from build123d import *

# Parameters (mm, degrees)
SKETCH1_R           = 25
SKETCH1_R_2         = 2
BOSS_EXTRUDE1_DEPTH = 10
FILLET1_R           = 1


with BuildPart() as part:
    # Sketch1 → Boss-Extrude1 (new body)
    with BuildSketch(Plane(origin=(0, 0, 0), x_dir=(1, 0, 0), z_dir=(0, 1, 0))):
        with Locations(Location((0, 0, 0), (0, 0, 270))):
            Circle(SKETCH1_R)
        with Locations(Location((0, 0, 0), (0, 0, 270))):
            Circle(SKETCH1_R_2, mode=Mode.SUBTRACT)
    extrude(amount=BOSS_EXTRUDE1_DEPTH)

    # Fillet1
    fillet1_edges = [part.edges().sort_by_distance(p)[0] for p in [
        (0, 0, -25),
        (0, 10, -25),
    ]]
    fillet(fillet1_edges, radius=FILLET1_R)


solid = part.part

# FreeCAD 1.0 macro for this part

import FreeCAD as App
import Part
import Sketcher

V = App.Vector
Q = App.Units.Quantity


def edges_at(feature, points):
    """Names of the edges that pass closest to the given points."""
    edges = feature.Shape.Edges
    near = lambda p: min(range(len(edges)), key=lambda i: edges[i].distToShape(Part.Vertex(*p))[0])
    return sorted({f"Edge{near(p) + 1}" for p in points})

doc = App.newDocument("Part")
params = doc.addObject("Spreadsheet::Sheet", "Params")
for row, (alias, value) in enumerate([
    ("sketch1_diameter", "50 mm"),
    ("sketch1_diameter2", "4 mm"),
    ("pad1_length", "10 mm"),
    ("fillet_radius", "1 mm"),
], start=1):
    params.set(f"A{row}", alias)
    params.set(f"B{row}", "=" + value)
    params.setAlias(f"B{row}", alias)

body = doc.addObject("PartDesign::Body", "Body")

# Sketch on XZ plane
sketch1 = body.newObject("Sketcher::SketchObject", "Sketch")
sketch1.AttachmentSupport = (doc.getObject("XZ_Plane"), [""])
sketch1.MapMode = "FlatFace"
sketch1.addGeometry(Part.Circle(V(0, 0, 0), V(0, 0, 1), 25), False)
sketch1.addGeometry(Part.Circle(V(0, 0, 0), V(0, 0, 1), 2), False)
sketch1.addConstraint(Sketcher.Constraint("Coincident", 0, 3, -1, 1))
sketch1.addConstraint(Sketcher.Constraint("Coincident", 1, 3, -1, 1))
sketch1.addConstraint(Sketcher.Constraint("Diameter", 0, Q("50 mm")))
sketch1.addConstraint(Sketcher.Constraint("Diameter", 1, Q("4 mm")))
sketch1.setExpression("Constraints[2]", "Params.sketch1_diameter")
sketch1.setExpression("Constraints[3]", "Params.sketch1_diameter2")
pad1 = body.newObject("PartDesign::Pad", "Pad")
pad1.Profile = sketch1
pad1.setExpression("Length", "Params.pad1_length")
pad1.Reversed = True
doc.recompute()

fillet = body.newObject("PartDesign::Fillet", "Fillet")
fillet.Base = (pad1, edges_at(pad1, [(0, 0, -25), (0, 10, -25)]))
fillet.setExpression("Radius", "Params.fillet_radius")

doc.recompute()
